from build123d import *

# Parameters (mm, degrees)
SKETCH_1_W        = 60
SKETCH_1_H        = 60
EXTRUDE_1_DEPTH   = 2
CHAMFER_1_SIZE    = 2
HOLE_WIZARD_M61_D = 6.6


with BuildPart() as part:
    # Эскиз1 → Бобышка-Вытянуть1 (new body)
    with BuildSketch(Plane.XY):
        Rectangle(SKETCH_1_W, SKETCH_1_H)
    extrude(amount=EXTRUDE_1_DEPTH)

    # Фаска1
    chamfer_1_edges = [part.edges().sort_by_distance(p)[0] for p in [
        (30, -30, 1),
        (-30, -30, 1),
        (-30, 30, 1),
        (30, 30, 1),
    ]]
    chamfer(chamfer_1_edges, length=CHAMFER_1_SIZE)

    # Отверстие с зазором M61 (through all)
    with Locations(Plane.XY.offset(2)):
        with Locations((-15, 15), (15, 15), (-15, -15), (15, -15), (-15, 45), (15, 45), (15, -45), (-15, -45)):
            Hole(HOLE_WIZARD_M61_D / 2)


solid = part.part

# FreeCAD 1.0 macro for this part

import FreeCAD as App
import Part
import Sketcher

V = App.Vector


def edges_at(feature, points):
    """Names of the edges that pass closest to the given points."""
    edges = feature.Shape.Edges
    near = lambda p: min(range(len(edges)), key=lambda i: edges[i].distToShape(Part.Vertex(*p))[0])
    return sorted({f"Edge{near(p) + 1}" for p in points})


def add_polygon(sketch, points):
    """Adds a closed chain of lines whose ends are joined by coincident constraints."""
    first, n = sketch.GeometryCount, len(points)
    for a, b in zip(points, points[1:] + points[:1]):
        sketch.addGeometry(Part.LineSegment(App.Vector(*a, 0), App.Vector(*b, 0)), False)
    for i in range(n):
        sketch.addConstraint(Sketcher.Constraint("Coincident", first + i, 2, first + (i + 1) % n, 1))

doc = App.newDocument("Part")
params = doc.addObject("Spreadsheet::Sheet", "Params")
for row, (alias, value) in enumerate([
    ("sketch1_width", "60 mm"),
    ("pad1_length", "2 mm"),
    ("chamfer_size", "2 mm"),
    ("sketch2_diameter", "6.6 mm"),
    ("hole_diameter", "6.6 mm"),
], start=1):
    params.set(f"A{row}", alias)
    params.set(f"B{row}", "=" + value)
    params.setAlias(f"B{row}", alias)

body = doc.addObject("PartDesign::Body", "Body")

# Sketch on XY plane
sketch1 = body.newObject("Sketcher::SketchObject", "Sketch")
sketch1.AttachmentSupport = (doc.getObject("XY_Plane"), [""])
sketch1.MapMode = "FlatFace"
add_polygon(sketch1, [(-30, 30), (-30, -30), (30, -30), (30, 30)])  # lines 0-3
sketch1.addConstraint(Sketcher.Constraint("Vertical", 0))
sketch1.addConstraint(Sketcher.Constraint("Horizontal", 1))
sketch1.addConstraint(Sketcher.Constraint("Vertical", 2))
sketch1.addConstraint(Sketcher.Constraint("Horizontal", 3))
sketch1.addConstraint(Sketcher.Constraint("Symmetric", 0, 2, 2, 2, -1, 1))
sketch1.addConstraint(Sketcher.Constraint("Equal", 3, 0))
sketch1.addConstraint(Sketcher.Constraint("DistanceX", 1, 1, 1, 2, 60.0))
sketch1.setExpression("Constraints[10]", "Params.sketch1_width")
pad1 = body.newObject("PartDesign::Pad", "Pad")
pad1.Profile = sketch1
pad1.setExpression("Length", "Params.pad1_length")
doc.recompute()

chamfer = body.newObject("PartDesign::Chamfer", "Chamfer")
chamfer.Base = (pad1, edges_at(pad1, [
    (30, -30, 1),
    (-30, -30, 1),
    (-30, 30, 1),
    (30, 30, 1),
]))
chamfer.setExpression("Size", "Params.chamfer_size")

# Sketch on XY plane
sketch2 = body.newObject("Sketcher::SketchObject", "Sketch001")
sketch2.AttachmentSupport = (doc.getObject("XY_Plane"), [""])
sketch2.MapMode = "FlatFace"
sketch2.AttachmentOffset = App.Placement(V(0, 0, 2), App.Rotation())
sketch2.addGeometry(Part.Circle(V(-15, 15, 0), V(0, 0, 1), 3.3), False)
sketch2.addGeometry(Part.Circle(V(15, 15, 0), V(0, 0, 1), 3.3), False)
sketch2.addGeometry(Part.Circle(V(-15, -15, 0), V(0, 0, 1), 3.3), False)
sketch2.addGeometry(Part.Circle(V(15, -15, 0), V(0, 0, 1), 3.3), False)
sketch2.addGeometry(Part.Circle(V(-15, 45, 0), V(0, 0, 1), 3.3), False)
sketch2.addGeometry(Part.Circle(V(15, 45, 0), V(0, 0, 1), 3.3), False)
sketch2.addGeometry(Part.Circle(V(15, -45, 0), V(0, 0, 1), 3.3), False)
sketch2.addGeometry(Part.Circle(V(-15, -45, 0), V(0, 0, 1), 3.3), False)
sketch2.addConstraint(Sketcher.Constraint("Equal", 0, 1))
sketch2.addConstraint(Sketcher.Constraint("Equal", 1, 2))
sketch2.addConstraint(Sketcher.Constraint("Equal", 2, 3))
sketch2.addConstraint(Sketcher.Constraint("Equal", 3, 4))
sketch2.addConstraint(Sketcher.Constraint("Equal", 4, 5))
sketch2.addConstraint(Sketcher.Constraint("Equal", 5, 6))
sketch2.addConstraint(Sketcher.Constraint("Equal", 6, 7))
sketch2.addConstraint(Sketcher.Constraint("Symmetric", 1, 3, 2, 3, -1, 1))
sketch2.addConstraint(Sketcher.Constraint("Symmetric", 0, 3, 3, 3, -1, 1))
sketch2.addConstraint(Sketcher.Constraint("Symmetric", 4, 3, 6, 3, -1, 1))
sketch2.addConstraint(Sketcher.Constraint("Symmetric", 5, 3, 7, 3, -1, 1))
sketch2.addConstraint(Sketcher.Constraint("Symmetric", 0, 3, 1, 3, -2))
sketch2.addConstraint(Sketcher.Constraint("Symmetric", 4, 3, 5, 3, -2))
sketch2.addConstraint(Sketcher.Constraint("Vertical", 2, 3, 4, 3))
sketch2.addConstraint(Sketcher.Constraint("Diameter", 0, 6.6))
sketch2.addConstraint(Sketcher.Constraint("DistanceX", 0, 3, -1, 1, 15.0))
sketch2.addConstraint(Sketcher.Constraint("DistanceY", -1, 1, 0, 3, 15.0))
sketch2.addConstraint(Sketcher.Constraint("DistanceY", -1, 1, 4, 3, 45.0))
sketch2.setExpression("Constraints[14]", "Params.sketch2_diameter")
doc.recompute()
hole = body.newObject("PartDesign::Hole", "Hole")
hole.Profile = sketch2
hole.ThreadType = "None"
hole.setExpression("Diameter", "Params.hole_diameter")
hole.DepthType = "ThroughAll"

doc.recompute()
